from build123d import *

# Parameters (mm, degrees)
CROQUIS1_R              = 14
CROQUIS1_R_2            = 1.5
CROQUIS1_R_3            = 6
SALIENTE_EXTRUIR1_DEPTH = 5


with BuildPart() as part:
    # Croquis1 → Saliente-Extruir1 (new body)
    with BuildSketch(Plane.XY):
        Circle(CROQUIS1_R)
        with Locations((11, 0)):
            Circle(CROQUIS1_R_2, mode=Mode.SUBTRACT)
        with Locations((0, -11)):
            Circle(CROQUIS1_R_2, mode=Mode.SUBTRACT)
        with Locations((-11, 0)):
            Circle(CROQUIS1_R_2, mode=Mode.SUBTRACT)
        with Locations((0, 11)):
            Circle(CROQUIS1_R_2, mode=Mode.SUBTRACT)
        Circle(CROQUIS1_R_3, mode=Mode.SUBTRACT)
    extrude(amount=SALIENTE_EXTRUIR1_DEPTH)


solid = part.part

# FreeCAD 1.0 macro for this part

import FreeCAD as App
import Part
import Sketcher

V = App.Vector

doc = App.newDocument("Part")
body = doc.addObject("PartDesign::Body", "Body")

sketch1 = body.newObject("Sketcher::SketchObject", "Sketch")
sketch1.AttachmentSupport = (doc.getObject("XY_Plane"), [""])
sketch1.MapMode = "FlatFace"
sketch1.addGeometry(Part.Circle(V(0, 0, 0), V(0, 0, 1), 14), False)
sketch1.addGeometry(Part.Circle(V(0, -11, 0), V(0, 0, 1), 1.5), False)
sketch1.addGeometry(Part.Circle(V(-11, 0, 0), V(0, 0, 1), 1.5), False)
sketch1.addGeometry(Part.Circle(V(0, 0, 0), V(0, 0, 1), 6), False)
sketch1.addGeometry(Part.Circle(V(11, 0, 0), V(0, 0, 1), 1.5), False)
sketch1.addGeometry(Part.Circle(V(0, 11, 0), V(0, 0, 1), 1.5), False)
sketch1.addConstraint(Sketcher.Constraint("Coincident", 0, 3, -1, 1))
sketch1.addConstraint(Sketcher.Constraint("Coincident", 3, 3, -1, 1))
sketch1.addConstraint(Sketcher.Constraint("Equal", 1, 2))
sketch1.addConstraint(Sketcher.Constraint("Equal", 2, 4))
sketch1.addConstraint(Sketcher.Constraint("Equal", 4, 5))
sketch1.addConstraint(Sketcher.Constraint("Symmetric", 2, 3, 4, 3, -1, 1))
sketch1.addConstraint(Sketcher.Constraint("Symmetric", 1, 3, 5, 3, -1, 1))
sketch1.addConstraint(Sketcher.Constraint("PointOnObject", 1, 3, -2))
sketch1.addConstraint(Sketcher.Constraint("PointOnObject", 2, 3, -1))
sketch1.addConstraint(Sketcher.Constraint("Diameter", 0, 28.0))
sketch1.addConstraint(Sketcher.Constraint("Diameter", 1, 3.0))
sketch1.addConstraint(Sketcher.Constraint("Diameter", 3, 12.0))
sketch1.addConstraint(Sketcher.Constraint("DistanceY", 1, 3, -1, 1, 11.0))
sketch1.addConstraint(Sketcher.Constraint("DistanceX", 2, 3, -1, 1, 11.0))
pad1 = body.newObject("PartDesign::Pad", "Pad")
pad1.Profile = sketch1
pad1.Length = 5

doc.recompute()
